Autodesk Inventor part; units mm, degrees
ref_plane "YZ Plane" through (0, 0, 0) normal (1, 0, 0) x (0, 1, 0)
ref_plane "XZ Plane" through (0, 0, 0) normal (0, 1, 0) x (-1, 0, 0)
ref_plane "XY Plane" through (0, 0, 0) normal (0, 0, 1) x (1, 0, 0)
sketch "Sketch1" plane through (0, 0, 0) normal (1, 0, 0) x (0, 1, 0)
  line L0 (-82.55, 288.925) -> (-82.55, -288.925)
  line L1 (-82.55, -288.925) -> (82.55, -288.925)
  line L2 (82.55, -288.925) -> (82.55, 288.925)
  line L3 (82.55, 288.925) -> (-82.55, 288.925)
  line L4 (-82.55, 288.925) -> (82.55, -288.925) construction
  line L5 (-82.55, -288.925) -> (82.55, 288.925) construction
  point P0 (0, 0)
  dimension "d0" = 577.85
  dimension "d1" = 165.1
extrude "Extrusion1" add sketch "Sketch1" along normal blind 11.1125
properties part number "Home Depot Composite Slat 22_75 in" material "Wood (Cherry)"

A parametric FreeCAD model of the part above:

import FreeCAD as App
import Part
import Sketcher
Q = App.Units.Quantity

doc = App.newDocument("Part")
body = doc.addObject("PartDesign::Body", "Body")

# Sketch on YZ plane
sketch1 = body.newObject("Sketcher::SketchObject", "Sketch")
sketch1.AttachmentSupport = (doc.getObject("YZ_Plane"), [""])
sketch1.MapMode = "FlatFace"
sketch1.addGeometry([
    Part.LineSegment(App.Vector(82.55, 288.925, 0), App.Vector(-82.55, 288.925, 0)),
    Part.LineSegment(App.Vector(-82.55, 288.925, 0), App.Vector(-82.55, -288.925, 0)),
    Part.LineSegment(App.Vector(-82.55, -288.925, 0), App.Vector(82.55, -288.925, 0)),
    Part.LineSegment(App.Vector(82.55, -288.925, 0), App.Vector(82.55, 288.925, 0)),
], False)
sketch1.addConstraint([
    Sketcher.Constraint("Coincident", 0, 2, 1, 1),
    Sketcher.Constraint("Coincident", 1, 2, 2, 1),
    Sketcher.Constraint("Coincident", 2, 2, 3, 1),
    Sketcher.Constraint("Coincident", 3, 2, 0, 1),
    Sketcher.Constraint("Horizontal", 0),
    Sketcher.Constraint("Vertical", 1),
    Sketcher.Constraint("Horizontal", 2),
    Sketcher.Constraint("Vertical", 3),
    Sketcher.Constraint("Symmetric", 0, 2, 2, 2, -1, 1),
    Sketcher.Constraint("DistanceX", 0, 2, 0, 1, Q("6.5 in")),
    Sketcher.Constraint("DistanceY", 1, 2, 1, 1, Q("22.75 in")),
])
pad1 = body.newObject("PartDesign::Pad", "Pad")
pad1.Profile = sketch1
pad1.Length = Q("0.4375 in")

doc.recompute()
